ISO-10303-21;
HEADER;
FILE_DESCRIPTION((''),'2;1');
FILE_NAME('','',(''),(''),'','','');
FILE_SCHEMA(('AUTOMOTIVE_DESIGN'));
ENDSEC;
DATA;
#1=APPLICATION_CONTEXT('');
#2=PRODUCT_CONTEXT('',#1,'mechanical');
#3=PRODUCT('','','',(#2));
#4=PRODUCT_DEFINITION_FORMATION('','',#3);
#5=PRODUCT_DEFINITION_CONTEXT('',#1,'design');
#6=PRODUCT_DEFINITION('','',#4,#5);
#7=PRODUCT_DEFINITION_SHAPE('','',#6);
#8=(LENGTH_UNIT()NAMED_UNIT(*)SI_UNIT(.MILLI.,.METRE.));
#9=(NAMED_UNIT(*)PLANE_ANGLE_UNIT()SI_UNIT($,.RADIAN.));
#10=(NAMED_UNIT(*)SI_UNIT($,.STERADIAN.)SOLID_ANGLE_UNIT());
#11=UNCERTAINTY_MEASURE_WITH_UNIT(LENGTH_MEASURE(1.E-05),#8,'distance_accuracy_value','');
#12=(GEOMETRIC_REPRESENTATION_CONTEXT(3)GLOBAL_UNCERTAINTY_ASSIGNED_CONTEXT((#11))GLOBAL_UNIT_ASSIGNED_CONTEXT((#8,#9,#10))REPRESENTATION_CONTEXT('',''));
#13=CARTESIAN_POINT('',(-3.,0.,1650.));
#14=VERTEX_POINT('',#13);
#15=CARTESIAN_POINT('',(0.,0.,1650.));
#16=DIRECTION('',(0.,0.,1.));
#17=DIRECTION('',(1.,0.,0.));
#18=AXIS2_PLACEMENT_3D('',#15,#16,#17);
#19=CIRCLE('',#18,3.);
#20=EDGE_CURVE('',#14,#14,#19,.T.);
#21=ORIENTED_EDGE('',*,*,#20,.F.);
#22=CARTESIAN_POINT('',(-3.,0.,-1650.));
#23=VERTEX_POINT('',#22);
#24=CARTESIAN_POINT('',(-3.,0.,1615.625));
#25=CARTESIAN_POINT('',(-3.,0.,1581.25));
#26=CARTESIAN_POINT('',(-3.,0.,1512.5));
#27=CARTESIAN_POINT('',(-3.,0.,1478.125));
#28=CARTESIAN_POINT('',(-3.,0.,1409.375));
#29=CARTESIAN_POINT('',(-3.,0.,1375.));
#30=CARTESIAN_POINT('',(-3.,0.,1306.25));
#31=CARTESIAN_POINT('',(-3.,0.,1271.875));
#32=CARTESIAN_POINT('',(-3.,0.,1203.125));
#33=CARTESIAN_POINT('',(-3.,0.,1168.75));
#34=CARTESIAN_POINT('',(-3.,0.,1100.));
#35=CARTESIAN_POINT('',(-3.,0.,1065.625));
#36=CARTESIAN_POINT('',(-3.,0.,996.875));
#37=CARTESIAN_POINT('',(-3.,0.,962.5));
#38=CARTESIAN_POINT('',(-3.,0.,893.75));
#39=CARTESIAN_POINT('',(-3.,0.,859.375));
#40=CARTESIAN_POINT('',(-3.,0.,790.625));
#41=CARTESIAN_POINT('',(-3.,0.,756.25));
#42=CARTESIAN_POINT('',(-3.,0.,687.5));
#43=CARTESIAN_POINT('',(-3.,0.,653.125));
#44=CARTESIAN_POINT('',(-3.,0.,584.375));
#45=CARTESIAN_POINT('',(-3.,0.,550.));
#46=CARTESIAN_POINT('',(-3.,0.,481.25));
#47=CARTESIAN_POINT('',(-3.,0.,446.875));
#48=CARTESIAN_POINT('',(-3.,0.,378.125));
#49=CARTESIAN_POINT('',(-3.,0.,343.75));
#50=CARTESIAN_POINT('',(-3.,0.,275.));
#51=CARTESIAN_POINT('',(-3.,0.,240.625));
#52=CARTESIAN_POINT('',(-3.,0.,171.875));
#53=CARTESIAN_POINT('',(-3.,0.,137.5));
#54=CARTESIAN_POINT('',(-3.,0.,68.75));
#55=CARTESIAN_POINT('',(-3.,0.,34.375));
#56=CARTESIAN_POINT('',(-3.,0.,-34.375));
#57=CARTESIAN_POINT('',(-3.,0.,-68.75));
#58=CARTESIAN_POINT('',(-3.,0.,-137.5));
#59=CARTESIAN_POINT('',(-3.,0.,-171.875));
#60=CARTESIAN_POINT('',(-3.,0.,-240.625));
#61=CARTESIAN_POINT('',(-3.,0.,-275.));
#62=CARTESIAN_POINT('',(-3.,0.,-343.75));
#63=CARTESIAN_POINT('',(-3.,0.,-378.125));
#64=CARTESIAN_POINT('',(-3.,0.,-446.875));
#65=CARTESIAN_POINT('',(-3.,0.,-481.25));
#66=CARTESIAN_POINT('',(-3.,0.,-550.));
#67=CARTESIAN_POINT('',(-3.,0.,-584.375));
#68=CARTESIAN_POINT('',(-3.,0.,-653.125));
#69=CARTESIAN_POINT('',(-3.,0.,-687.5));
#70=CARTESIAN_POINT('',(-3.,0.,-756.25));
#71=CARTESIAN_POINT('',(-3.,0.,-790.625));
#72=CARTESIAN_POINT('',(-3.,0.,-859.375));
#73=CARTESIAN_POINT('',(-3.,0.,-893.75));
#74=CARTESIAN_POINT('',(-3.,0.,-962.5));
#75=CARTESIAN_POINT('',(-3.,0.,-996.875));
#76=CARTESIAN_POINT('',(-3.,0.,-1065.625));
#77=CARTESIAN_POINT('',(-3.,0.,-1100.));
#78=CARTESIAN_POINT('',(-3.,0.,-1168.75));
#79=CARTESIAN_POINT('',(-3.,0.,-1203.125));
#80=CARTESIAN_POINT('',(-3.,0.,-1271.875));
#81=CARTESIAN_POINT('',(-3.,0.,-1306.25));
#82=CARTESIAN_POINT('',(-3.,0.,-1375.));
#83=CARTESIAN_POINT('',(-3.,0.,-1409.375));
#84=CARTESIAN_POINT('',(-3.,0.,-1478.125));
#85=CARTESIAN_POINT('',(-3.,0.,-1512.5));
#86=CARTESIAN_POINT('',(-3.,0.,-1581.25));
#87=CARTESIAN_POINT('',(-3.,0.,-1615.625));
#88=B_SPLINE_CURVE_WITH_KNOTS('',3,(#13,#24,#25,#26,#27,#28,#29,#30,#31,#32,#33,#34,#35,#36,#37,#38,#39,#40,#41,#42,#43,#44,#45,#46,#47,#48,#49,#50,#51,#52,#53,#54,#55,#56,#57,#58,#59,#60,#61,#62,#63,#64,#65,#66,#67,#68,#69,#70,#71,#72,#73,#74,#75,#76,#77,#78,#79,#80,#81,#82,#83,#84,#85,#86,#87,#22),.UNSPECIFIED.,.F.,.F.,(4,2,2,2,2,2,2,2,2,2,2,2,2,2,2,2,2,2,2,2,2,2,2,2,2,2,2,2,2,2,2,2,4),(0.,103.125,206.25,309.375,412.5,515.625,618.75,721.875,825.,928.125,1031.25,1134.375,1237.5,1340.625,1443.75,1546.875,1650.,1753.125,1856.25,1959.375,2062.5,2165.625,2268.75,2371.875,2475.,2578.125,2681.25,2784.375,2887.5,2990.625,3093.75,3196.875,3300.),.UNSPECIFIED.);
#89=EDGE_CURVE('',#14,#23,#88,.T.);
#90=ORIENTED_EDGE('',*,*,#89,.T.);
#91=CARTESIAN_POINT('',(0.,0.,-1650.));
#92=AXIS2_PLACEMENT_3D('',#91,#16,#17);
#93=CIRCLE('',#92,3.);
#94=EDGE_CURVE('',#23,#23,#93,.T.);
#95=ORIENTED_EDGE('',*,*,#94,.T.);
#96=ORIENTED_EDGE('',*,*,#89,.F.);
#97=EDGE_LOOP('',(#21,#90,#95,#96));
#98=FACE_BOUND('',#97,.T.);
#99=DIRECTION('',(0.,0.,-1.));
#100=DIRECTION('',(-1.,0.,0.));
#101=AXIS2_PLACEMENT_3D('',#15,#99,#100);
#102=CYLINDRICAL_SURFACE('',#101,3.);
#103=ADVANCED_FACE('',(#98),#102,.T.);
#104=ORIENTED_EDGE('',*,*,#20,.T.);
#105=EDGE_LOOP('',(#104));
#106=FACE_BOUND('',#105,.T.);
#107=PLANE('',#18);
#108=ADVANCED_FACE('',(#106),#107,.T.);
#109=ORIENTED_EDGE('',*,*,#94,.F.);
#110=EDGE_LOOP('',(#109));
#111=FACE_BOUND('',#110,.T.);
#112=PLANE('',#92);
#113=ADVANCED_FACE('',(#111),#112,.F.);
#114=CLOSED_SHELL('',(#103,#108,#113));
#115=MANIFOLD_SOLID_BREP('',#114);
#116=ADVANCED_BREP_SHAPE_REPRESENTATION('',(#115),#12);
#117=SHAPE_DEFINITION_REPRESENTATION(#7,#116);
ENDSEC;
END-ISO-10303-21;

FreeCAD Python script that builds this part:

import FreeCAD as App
import Part
import Sketcher
from FreeCAD import Vector

doc = App.newDocument("Part")
body = doc.addObject("PartDesign::Body", "Body")

sketch1 = doc.addObject("Sketcher::SketchObject", "Sketch")
body.addObject(sketch1)
sketch1.AttachmentSupport = (doc.XY_Plane, [""])
sketch1.MapMode = "FlatFace"
sketch1.addGeometry(Part.Circle(Vector(0, 0, 0), Vector(0, 0, 1), 3), False)
sketch1.addConstraint([
    Sketcher.Constraint("Coincident", 0, 3, -1, 1),
    Sketcher.Constraint("Diameter", 0, 6.0),
])
pad1 = doc.addObject("PartDesign::Pad", "Pad")
body.addObject(pad1)
pad1.Profile = sketch1
pad1.Length = 3300
pad1.Midplane = True

doc.recompute()
